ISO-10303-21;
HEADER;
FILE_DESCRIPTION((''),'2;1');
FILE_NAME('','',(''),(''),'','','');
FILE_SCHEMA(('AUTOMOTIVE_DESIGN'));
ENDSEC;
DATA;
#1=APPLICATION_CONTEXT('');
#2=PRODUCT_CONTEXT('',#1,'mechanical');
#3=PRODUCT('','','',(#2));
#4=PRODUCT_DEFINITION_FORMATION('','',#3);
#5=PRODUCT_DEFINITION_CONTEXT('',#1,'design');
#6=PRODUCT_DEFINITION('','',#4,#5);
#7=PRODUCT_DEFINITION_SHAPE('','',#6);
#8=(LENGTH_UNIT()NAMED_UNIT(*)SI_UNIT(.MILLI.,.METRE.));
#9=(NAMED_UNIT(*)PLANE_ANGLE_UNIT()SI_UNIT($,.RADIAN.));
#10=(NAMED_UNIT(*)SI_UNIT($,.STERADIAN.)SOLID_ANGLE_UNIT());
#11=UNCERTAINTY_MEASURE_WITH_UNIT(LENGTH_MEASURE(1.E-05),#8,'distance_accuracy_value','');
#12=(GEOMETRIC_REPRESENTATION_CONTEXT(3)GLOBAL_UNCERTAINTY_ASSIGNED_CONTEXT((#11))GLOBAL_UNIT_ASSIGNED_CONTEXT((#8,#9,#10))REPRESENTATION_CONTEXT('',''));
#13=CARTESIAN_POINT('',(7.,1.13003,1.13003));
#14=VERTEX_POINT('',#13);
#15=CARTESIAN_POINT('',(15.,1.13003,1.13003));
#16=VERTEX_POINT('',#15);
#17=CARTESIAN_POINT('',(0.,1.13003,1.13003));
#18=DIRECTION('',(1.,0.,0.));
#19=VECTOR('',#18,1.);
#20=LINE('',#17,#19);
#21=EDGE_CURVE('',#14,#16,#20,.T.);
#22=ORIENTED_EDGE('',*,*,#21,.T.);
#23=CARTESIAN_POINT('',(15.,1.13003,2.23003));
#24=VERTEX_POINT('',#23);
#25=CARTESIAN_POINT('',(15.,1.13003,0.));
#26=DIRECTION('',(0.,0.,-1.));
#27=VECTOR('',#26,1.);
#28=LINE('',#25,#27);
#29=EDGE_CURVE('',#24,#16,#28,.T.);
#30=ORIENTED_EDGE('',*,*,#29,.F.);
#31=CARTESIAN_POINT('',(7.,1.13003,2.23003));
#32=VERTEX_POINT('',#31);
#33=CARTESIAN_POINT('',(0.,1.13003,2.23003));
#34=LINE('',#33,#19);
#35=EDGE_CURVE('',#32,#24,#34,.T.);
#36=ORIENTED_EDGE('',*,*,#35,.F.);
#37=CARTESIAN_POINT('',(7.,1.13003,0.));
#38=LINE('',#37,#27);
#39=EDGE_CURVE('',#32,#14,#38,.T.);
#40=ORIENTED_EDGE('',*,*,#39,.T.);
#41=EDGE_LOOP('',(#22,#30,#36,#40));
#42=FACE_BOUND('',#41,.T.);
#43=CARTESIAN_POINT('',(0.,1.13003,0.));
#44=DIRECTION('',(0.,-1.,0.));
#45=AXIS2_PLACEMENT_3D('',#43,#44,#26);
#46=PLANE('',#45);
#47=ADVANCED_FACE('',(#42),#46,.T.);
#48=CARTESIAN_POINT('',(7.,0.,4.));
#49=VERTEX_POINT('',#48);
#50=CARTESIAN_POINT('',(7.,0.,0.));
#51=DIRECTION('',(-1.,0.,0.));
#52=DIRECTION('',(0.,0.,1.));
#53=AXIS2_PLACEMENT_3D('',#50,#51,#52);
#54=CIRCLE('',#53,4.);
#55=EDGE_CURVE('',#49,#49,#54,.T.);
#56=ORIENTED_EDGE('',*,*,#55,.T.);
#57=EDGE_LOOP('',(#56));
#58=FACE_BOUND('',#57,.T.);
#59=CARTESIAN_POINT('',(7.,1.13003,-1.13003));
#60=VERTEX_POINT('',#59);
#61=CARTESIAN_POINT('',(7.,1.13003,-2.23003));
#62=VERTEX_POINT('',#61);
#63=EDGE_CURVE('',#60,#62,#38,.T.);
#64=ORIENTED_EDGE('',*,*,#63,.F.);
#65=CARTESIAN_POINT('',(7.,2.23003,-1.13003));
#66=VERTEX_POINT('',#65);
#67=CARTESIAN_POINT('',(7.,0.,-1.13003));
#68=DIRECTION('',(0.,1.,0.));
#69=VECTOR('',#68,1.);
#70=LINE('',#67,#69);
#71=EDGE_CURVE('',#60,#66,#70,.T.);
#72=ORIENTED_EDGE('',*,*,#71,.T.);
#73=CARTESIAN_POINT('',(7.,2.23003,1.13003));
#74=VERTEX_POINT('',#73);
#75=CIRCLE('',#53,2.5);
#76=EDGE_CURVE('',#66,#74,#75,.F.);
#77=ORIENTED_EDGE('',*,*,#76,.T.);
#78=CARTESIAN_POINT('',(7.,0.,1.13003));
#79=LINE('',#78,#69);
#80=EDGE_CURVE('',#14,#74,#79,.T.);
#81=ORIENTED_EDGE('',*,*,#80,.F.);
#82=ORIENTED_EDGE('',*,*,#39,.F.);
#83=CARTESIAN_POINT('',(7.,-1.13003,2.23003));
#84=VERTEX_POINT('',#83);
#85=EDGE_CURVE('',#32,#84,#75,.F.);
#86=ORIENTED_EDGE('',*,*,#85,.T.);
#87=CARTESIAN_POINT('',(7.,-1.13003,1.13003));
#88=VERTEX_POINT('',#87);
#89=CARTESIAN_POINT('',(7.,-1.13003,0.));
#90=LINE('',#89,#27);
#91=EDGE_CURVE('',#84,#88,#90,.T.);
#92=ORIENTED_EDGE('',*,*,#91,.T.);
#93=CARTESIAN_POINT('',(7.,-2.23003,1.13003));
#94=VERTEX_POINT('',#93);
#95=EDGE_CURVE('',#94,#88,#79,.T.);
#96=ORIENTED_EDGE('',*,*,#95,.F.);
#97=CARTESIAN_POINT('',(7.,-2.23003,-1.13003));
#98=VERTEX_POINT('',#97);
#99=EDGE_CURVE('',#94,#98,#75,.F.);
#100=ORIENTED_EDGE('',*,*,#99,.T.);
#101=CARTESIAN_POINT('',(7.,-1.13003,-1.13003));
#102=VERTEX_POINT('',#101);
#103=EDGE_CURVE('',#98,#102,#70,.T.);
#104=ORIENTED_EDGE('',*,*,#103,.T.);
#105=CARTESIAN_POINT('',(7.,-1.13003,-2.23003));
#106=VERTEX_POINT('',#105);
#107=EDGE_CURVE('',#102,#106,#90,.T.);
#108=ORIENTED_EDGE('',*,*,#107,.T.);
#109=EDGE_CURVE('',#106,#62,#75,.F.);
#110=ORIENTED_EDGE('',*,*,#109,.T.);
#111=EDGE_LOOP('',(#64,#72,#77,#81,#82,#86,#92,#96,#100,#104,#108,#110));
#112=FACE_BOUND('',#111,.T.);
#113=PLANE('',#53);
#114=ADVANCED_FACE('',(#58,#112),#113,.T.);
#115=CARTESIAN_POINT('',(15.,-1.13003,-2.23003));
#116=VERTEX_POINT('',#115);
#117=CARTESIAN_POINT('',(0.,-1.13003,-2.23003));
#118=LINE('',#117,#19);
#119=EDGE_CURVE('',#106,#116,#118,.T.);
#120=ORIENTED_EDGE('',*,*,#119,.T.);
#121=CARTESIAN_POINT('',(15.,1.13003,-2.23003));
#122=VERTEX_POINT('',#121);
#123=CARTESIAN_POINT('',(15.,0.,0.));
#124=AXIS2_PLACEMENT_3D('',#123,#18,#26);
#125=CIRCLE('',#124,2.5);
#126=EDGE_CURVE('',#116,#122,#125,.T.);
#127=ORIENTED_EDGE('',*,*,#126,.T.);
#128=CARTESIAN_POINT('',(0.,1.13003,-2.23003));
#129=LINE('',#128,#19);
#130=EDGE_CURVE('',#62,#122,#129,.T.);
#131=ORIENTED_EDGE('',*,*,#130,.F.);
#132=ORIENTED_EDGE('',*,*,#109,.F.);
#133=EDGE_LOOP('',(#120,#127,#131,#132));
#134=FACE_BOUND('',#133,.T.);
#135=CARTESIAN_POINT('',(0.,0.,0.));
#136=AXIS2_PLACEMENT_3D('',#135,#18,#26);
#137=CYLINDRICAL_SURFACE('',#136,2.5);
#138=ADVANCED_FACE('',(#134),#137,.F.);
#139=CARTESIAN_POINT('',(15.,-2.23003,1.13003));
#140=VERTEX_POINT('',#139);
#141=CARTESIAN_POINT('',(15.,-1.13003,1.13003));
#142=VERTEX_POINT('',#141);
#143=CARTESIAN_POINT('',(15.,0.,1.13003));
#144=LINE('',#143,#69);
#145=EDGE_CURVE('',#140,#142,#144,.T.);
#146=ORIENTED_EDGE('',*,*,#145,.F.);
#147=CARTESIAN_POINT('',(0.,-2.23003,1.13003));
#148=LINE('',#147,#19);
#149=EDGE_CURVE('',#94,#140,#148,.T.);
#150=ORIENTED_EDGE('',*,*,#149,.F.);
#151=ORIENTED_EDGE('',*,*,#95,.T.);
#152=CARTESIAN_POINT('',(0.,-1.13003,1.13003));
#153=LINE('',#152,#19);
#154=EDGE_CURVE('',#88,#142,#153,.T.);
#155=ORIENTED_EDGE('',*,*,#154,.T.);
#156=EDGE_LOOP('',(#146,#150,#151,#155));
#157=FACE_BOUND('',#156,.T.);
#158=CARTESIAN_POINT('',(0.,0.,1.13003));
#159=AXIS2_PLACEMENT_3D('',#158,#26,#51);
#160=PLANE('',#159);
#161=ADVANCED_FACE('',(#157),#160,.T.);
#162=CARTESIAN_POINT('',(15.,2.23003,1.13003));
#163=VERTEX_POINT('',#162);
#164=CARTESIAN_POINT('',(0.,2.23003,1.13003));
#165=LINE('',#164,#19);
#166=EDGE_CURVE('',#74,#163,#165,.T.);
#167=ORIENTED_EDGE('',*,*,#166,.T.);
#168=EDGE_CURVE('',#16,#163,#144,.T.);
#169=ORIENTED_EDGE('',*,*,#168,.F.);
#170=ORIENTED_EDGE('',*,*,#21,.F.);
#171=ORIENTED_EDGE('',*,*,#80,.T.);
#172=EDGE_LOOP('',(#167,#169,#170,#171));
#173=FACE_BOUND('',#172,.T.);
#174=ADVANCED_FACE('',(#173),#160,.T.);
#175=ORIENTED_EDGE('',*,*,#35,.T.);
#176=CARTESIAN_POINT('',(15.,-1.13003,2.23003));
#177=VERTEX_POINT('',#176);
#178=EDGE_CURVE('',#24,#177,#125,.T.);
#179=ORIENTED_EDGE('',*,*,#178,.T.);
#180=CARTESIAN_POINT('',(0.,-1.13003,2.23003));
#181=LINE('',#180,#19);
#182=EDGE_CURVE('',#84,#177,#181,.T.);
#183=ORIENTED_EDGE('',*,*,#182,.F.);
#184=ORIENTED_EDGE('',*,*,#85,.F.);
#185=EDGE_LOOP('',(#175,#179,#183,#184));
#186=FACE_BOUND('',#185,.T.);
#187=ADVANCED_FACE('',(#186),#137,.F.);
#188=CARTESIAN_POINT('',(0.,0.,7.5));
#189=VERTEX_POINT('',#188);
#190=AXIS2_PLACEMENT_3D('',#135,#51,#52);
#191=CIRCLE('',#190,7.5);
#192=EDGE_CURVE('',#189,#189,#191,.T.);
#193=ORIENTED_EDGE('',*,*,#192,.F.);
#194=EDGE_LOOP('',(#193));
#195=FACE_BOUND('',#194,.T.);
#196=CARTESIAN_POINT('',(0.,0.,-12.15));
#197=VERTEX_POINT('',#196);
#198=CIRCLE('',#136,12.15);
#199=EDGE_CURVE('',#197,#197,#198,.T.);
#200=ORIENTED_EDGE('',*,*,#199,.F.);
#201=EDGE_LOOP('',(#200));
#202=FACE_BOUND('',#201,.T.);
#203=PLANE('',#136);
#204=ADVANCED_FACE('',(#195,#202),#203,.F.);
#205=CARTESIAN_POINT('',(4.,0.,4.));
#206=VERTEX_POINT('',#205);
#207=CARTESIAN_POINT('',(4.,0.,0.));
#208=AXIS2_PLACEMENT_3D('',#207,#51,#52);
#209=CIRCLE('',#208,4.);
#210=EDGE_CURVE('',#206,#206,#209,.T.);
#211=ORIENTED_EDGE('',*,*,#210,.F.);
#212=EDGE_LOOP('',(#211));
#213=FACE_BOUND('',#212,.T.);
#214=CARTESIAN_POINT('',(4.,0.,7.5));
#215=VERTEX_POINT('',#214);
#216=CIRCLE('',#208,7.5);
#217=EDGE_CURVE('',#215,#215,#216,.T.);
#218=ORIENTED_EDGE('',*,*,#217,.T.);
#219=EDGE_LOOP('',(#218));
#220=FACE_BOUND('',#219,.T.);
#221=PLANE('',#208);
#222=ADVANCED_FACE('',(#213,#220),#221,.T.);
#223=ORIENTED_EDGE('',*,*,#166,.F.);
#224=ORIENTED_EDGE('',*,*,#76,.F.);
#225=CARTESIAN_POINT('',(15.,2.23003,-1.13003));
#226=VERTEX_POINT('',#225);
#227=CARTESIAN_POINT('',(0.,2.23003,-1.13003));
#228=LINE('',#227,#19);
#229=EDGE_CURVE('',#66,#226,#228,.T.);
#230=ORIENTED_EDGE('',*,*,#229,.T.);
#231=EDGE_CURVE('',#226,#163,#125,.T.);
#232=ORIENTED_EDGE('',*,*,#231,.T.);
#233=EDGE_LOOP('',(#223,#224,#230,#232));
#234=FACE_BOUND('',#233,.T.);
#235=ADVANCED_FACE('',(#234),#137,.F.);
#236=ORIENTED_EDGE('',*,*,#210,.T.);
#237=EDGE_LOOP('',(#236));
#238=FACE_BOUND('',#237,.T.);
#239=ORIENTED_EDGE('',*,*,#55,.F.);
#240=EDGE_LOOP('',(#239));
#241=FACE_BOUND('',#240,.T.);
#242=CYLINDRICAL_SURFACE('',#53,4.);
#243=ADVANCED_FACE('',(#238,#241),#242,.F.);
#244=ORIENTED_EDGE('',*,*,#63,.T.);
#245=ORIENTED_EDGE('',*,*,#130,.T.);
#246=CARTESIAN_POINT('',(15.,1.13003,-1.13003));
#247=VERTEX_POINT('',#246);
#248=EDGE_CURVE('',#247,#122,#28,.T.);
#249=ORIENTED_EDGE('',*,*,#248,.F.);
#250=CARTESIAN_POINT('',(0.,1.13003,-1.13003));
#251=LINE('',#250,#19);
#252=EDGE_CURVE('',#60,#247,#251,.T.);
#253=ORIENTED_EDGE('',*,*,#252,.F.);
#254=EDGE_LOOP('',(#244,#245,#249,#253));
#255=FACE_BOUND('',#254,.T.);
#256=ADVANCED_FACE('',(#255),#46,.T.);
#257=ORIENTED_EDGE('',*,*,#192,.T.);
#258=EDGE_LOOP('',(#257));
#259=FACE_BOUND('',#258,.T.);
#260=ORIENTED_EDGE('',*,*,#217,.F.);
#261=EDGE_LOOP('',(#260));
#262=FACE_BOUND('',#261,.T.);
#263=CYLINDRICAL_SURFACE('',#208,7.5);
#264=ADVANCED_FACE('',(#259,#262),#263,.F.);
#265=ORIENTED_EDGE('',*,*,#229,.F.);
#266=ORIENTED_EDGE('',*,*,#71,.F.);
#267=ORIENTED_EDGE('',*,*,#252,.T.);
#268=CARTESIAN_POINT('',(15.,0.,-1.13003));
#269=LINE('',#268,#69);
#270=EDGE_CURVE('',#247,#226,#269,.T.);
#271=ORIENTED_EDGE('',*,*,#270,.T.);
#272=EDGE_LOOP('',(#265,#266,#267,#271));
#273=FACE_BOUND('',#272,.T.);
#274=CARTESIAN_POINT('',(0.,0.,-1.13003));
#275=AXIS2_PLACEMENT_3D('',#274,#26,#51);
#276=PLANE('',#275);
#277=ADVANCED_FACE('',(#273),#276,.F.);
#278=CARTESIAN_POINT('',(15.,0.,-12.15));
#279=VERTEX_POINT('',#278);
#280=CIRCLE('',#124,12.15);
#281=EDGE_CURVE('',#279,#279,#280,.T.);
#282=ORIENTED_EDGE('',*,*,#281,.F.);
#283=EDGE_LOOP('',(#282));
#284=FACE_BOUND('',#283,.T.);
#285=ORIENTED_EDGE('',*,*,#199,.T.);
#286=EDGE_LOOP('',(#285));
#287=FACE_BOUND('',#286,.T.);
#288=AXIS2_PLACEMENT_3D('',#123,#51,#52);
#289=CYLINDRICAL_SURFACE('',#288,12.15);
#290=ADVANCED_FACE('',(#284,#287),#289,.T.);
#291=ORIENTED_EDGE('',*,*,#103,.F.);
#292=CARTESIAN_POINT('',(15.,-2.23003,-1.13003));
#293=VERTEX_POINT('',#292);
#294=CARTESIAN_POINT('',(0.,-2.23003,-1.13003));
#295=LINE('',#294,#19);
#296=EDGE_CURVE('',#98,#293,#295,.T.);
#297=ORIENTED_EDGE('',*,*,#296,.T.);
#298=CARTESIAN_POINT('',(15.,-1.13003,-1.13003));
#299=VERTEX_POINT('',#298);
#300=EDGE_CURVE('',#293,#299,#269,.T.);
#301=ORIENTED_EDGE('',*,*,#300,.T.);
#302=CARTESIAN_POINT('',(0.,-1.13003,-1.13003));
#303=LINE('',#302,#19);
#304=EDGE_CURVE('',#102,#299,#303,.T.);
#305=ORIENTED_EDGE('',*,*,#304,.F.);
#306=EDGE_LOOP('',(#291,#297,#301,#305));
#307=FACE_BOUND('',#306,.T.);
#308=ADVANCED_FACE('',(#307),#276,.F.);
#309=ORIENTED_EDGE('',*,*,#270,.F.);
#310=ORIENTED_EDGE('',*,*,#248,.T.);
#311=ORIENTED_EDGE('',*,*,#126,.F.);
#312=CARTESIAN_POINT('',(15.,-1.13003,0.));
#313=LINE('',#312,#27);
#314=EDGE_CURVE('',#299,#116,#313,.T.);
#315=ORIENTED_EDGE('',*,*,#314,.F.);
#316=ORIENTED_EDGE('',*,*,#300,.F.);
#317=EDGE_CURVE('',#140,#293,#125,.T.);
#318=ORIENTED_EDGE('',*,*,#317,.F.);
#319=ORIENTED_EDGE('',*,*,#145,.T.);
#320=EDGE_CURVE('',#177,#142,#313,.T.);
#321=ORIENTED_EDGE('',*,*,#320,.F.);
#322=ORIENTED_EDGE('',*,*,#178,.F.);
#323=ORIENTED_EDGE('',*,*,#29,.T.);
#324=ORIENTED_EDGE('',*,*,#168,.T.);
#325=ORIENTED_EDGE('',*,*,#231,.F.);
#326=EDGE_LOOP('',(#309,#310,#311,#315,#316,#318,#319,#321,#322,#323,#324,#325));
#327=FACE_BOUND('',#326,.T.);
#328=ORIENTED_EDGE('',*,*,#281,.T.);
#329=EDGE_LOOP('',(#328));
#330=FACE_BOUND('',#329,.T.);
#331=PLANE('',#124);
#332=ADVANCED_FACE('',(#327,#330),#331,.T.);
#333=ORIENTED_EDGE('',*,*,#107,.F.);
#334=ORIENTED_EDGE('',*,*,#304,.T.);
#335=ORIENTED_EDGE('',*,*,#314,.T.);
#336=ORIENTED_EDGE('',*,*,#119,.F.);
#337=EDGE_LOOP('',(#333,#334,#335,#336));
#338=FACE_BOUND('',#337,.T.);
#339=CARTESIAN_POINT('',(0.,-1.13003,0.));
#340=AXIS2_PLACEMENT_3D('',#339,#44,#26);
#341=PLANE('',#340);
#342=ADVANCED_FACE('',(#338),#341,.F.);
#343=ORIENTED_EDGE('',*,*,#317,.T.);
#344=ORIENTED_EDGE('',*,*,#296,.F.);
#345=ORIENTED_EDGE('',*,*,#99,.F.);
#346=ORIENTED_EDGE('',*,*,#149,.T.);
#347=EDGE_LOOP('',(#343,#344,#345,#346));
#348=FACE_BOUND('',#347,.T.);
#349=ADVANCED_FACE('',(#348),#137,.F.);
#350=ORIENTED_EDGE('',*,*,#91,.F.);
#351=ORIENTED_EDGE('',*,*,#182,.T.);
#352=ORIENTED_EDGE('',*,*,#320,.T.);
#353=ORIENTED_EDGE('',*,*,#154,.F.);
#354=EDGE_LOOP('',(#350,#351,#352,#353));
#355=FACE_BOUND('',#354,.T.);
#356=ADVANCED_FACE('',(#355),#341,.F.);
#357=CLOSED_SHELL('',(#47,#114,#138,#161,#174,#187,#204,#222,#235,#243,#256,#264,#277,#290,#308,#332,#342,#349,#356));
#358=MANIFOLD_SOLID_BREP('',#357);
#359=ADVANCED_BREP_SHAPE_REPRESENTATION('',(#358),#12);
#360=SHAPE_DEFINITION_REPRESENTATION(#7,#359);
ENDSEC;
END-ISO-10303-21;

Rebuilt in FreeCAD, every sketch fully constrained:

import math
import FreeCAD as App
import Part
import Sketcher
from FreeCAD import Vector

doc = App.newDocument("Part")
body = doc.addObject("PartDesign::Body", "Body")

sketch1 = doc.addObject("Sketcher::SketchObject", "Sketch")
body.addObject(sketch1)
sketch1.AttachmentSupport = (doc.YZ_Plane, [""])
sketch1.MapMode = "FlatFace"
sketch1.addGeometry(Part.Circle(Vector(0, 0, 0), Vector(0, 0, 1), 12.15), False)
sketch1.addConstraint(Sketcher.Constraint("Coincident", 0, 3, -1, 1))
sketch1.addConstraint(Sketcher.Constraint("Diameter", 0, 24.3))
pad1 = doc.addObject("PartDesign::Pad", "Pad")
body.addObject(pad1)
pad1.Profile = sketch1
pad1.Length = 15

sketch2 = doc.addObject("Sketcher::SketchObject", "Sketch001")
body.addObject(sketch2)
sketch2.AttachmentSupport = (doc.YZ_Plane, [""])
sketch2.MapMode = "FlatFace"
sketch2.AttachmentOffset = App.Placement(Vector(0, 0, 15), App.Rotation())
sketch2.addGeometry(Part.LineSegment(Vector(2.23003, 1.13003, 0), Vector(1.13003, 1.13003, 0)), False)
sketch2.addGeometry(Part.LineSegment(Vector(1.13003, 1.13003, 0), Vector(1.13003, 2.23003, 0)), False)
sketch2.addGeometry(Part.ArcOfCircle(Part.Circle(Vector(0, 0, 0), Vector(0, 0, 1), 2.5), math.radians(63.127161), math.radians(116.872839)), False)
sketch2.addGeometry(Part.LineSegment(Vector(-1.13003, 2.23003, 0), Vector(-1.13003, 1.13003, 0)), False)
sketch2.addGeometry(Part.LineSegment(Vector(-1.13003, 1.13003, 0), Vector(-2.23003, 1.13003, 0)), False)
sketch2.addGeometry(Part.ArcOfCircle(Part.Circle(Vector(0, 0, 0), Vector(0, 0, 1), 2.5), math.radians(153.127161), math.radians(206.872839)), False)
sketch2.addGeometry(Part.LineSegment(Vector(-2.23003, -1.13003, 0), Vector(-1.13003, -1.13003, 0)), False)
sketch2.addGeometry(Part.LineSegment(Vector(-1.13003, -1.13003, 0), Vector(-1.13003, -2.23003, 0)), False)
sketch2.addGeometry(Part.ArcOfCircle(Part.Circle(Vector(0, 0, 0), Vector(0, 0, 1), 2.5), math.radians(-116.872839), math.radians(-90)), False)
sketch2.addGeometry(Part.ArcOfCircle(Part.Circle(Vector(0, 0, 0), Vector(0, 0, 1), 2.5), math.radians(-90), math.radians(-63.127161)), False)
sketch2.addGeometry(Part.LineSegment(Vector(1.13003, -2.23003, 0), Vector(1.13003, -1.13003, 0)), False)
sketch2.addGeometry(Part.LineSegment(Vector(1.13003, -1.13003, 0), Vector(2.23003, -1.13003, 0)), False)
sketch2.addGeometry(Part.ArcOfCircle(Part.Circle(Vector(0, 0, 0), Vector(0, 0, 1), 2.5), math.radians(-26.872839), math.radians(26.872839)), False)
sketch2.addConstraint(Sketcher.Constraint("Coincident", 0, 2, 1, 1))
sketch2.addConstraint(Sketcher.Constraint("Coincident", 1, 2, 2, 1))
sketch2.addConstraint(Sketcher.Constraint("Coincident", 2, 2, 3, 1))
sketch2.addConstraint(Sketcher.Constraint("Coincident", 3, 2, 4, 1))
sketch2.addConstraint(Sketcher.Constraint("Coincident", 4, 2, 5, 1))
sketch2.addConstraint(Sketcher.Constraint("Coincident", 5, 2, 6, 1))
sketch2.addConstraint(Sketcher.Constraint("Coincident", 6, 2, 7, 1))
sketch2.addConstraint(Sketcher.Constraint("Coincident", 7, 2, 8, 1))
sketch2.addConstraint(Sketcher.Constraint("Tangent", 8, 2, 9, 1))
sketch2.addConstraint(Sketcher.Constraint("Coincident", 9, 2, 10, 1))
sketch2.addConstraint(Sketcher.Constraint("Coincident", 10, 2, 11, 1))
sketch2.addConstraint(Sketcher.Constraint("Coincident", 11, 2, 12, 1))
sketch2.addConstraint(Sketcher.Constraint("Coincident", 12, 2, 0, 1))
sketch2.addConstraint(Sketcher.Constraint("Horizontal", 0))
sketch2.addConstraint(Sketcher.Constraint("Vertical", 1))
sketch2.addConstraint(Sketcher.Constraint("Vertical", 3))
sketch2.addConstraint(Sketcher.Constraint("Horizontal", 4))
sketch2.addConstraint(Sketcher.Constraint("Horizontal", 6))
sketch2.addConstraint(Sketcher.Constraint("Vertical", 7))
sketch2.addConstraint(Sketcher.Constraint("Vertical", 10))
sketch2.addConstraint(Sketcher.Constraint("Horizontal", 11))
sketch2.addConstraint(Sketcher.Constraint("Coincident", 2, 3, -1, 1))
sketch2.addConstraint(Sketcher.Constraint("Coincident", 5, 3, -1, 1))
sketch2.addConstraint(Sketcher.Constraint("Coincident", 8, 3, -1, 1))
sketch2.addConstraint(Sketcher.Constraint("Coincident", 12, 3, -1, 1))
sketch2.addConstraint(Sketcher.Constraint("Equal", 2, 5))
sketch2.addConstraint(Sketcher.Constraint("Equal", 5, 8))
sketch2.addConstraint(Sketcher.Constraint("Equal", 8, 9))
sketch2.addConstraint(Sketcher.Constraint("Equal", 9, 12))
sketch2.addConstraint(Sketcher.Constraint("Symmetric", 0, 2, 6, 2, -1, 1))
sketch2.addConstraint(Sketcher.Constraint("Symmetric", 3, 2, 10, 2, -1, 1))
sketch2.addConstraint(Sketcher.Constraint("Symmetric", 0, 2, 3, 2, -2))
sketch2.addConstraint(Sketcher.Constraint("PointOnObject", 8, 2, -2))
sketch2.addConstraint(Sketcher.Constraint("Equal", 11, 1))
sketch2.addConstraint(Sketcher.Constraint("Radius", 2, 2.5))
sketch2.addConstraint(Sketcher.Constraint("DistanceX", 0, 2, 0, 1, 1.1))
pocket1 = doc.addObject("PartDesign::Pocket", "Pocket")
body.addObject(pocket1)
pocket1.Profile = sketch2
pocket1.Type = "ThroughAll"

sketch3 = doc.addObject("Sketcher::SketchObject", "Sketch002")
body.addObject(sketch3)
sketch3.AttachmentSupport = (doc.YZ_Plane, [""])
sketch3.MapMode = "FlatFace"
sketch3.addGeometry(Part.Circle(Vector(0, 0, 0), Vector(0, 0, 1), 7.5), False)
sketch3.addConstraint(Sketcher.Constraint("Coincident", 0, 3, -1, 1))
sketch3.addConstraint(Sketcher.Constraint("Diameter", 0, 15.0))
pocket2 = doc.addObject("PartDesign::Pocket", "Pocket001")
body.addObject(pocket2)
pocket2.Profile = sketch3
pocket2.Length = 4
pocket2.Reversed = True

sketch4 = doc.addObject("Sketcher::SketchObject", "Sketch003")
body.addObject(sketch4)
sketch4.AttachmentSupport = (doc.YZ_Plane, [""])
sketch4.MapMode = "FlatFace"
sketch4.AttachmentOffset = App.Placement(Vector(0, 0, 4), App.Rotation())
sketch4.addGeometry(Part.Circle(Vector(0, 0, 0), Vector(0, 0, 1), 4), False)
sketch4.addConstraint(Sketcher.Constraint("Coincident", 0, 3, -1, 1))
sketch4.addConstraint(Sketcher.Constraint("Diameter", 0, 8.0))
pocket3 = doc.addObject("PartDesign::Pocket", "Pocket002")
body.addObject(pocket3)
pocket3.Profile = sketch4
pocket3.Length = 3
pocket3.Reversed = True

doc.recompute()
